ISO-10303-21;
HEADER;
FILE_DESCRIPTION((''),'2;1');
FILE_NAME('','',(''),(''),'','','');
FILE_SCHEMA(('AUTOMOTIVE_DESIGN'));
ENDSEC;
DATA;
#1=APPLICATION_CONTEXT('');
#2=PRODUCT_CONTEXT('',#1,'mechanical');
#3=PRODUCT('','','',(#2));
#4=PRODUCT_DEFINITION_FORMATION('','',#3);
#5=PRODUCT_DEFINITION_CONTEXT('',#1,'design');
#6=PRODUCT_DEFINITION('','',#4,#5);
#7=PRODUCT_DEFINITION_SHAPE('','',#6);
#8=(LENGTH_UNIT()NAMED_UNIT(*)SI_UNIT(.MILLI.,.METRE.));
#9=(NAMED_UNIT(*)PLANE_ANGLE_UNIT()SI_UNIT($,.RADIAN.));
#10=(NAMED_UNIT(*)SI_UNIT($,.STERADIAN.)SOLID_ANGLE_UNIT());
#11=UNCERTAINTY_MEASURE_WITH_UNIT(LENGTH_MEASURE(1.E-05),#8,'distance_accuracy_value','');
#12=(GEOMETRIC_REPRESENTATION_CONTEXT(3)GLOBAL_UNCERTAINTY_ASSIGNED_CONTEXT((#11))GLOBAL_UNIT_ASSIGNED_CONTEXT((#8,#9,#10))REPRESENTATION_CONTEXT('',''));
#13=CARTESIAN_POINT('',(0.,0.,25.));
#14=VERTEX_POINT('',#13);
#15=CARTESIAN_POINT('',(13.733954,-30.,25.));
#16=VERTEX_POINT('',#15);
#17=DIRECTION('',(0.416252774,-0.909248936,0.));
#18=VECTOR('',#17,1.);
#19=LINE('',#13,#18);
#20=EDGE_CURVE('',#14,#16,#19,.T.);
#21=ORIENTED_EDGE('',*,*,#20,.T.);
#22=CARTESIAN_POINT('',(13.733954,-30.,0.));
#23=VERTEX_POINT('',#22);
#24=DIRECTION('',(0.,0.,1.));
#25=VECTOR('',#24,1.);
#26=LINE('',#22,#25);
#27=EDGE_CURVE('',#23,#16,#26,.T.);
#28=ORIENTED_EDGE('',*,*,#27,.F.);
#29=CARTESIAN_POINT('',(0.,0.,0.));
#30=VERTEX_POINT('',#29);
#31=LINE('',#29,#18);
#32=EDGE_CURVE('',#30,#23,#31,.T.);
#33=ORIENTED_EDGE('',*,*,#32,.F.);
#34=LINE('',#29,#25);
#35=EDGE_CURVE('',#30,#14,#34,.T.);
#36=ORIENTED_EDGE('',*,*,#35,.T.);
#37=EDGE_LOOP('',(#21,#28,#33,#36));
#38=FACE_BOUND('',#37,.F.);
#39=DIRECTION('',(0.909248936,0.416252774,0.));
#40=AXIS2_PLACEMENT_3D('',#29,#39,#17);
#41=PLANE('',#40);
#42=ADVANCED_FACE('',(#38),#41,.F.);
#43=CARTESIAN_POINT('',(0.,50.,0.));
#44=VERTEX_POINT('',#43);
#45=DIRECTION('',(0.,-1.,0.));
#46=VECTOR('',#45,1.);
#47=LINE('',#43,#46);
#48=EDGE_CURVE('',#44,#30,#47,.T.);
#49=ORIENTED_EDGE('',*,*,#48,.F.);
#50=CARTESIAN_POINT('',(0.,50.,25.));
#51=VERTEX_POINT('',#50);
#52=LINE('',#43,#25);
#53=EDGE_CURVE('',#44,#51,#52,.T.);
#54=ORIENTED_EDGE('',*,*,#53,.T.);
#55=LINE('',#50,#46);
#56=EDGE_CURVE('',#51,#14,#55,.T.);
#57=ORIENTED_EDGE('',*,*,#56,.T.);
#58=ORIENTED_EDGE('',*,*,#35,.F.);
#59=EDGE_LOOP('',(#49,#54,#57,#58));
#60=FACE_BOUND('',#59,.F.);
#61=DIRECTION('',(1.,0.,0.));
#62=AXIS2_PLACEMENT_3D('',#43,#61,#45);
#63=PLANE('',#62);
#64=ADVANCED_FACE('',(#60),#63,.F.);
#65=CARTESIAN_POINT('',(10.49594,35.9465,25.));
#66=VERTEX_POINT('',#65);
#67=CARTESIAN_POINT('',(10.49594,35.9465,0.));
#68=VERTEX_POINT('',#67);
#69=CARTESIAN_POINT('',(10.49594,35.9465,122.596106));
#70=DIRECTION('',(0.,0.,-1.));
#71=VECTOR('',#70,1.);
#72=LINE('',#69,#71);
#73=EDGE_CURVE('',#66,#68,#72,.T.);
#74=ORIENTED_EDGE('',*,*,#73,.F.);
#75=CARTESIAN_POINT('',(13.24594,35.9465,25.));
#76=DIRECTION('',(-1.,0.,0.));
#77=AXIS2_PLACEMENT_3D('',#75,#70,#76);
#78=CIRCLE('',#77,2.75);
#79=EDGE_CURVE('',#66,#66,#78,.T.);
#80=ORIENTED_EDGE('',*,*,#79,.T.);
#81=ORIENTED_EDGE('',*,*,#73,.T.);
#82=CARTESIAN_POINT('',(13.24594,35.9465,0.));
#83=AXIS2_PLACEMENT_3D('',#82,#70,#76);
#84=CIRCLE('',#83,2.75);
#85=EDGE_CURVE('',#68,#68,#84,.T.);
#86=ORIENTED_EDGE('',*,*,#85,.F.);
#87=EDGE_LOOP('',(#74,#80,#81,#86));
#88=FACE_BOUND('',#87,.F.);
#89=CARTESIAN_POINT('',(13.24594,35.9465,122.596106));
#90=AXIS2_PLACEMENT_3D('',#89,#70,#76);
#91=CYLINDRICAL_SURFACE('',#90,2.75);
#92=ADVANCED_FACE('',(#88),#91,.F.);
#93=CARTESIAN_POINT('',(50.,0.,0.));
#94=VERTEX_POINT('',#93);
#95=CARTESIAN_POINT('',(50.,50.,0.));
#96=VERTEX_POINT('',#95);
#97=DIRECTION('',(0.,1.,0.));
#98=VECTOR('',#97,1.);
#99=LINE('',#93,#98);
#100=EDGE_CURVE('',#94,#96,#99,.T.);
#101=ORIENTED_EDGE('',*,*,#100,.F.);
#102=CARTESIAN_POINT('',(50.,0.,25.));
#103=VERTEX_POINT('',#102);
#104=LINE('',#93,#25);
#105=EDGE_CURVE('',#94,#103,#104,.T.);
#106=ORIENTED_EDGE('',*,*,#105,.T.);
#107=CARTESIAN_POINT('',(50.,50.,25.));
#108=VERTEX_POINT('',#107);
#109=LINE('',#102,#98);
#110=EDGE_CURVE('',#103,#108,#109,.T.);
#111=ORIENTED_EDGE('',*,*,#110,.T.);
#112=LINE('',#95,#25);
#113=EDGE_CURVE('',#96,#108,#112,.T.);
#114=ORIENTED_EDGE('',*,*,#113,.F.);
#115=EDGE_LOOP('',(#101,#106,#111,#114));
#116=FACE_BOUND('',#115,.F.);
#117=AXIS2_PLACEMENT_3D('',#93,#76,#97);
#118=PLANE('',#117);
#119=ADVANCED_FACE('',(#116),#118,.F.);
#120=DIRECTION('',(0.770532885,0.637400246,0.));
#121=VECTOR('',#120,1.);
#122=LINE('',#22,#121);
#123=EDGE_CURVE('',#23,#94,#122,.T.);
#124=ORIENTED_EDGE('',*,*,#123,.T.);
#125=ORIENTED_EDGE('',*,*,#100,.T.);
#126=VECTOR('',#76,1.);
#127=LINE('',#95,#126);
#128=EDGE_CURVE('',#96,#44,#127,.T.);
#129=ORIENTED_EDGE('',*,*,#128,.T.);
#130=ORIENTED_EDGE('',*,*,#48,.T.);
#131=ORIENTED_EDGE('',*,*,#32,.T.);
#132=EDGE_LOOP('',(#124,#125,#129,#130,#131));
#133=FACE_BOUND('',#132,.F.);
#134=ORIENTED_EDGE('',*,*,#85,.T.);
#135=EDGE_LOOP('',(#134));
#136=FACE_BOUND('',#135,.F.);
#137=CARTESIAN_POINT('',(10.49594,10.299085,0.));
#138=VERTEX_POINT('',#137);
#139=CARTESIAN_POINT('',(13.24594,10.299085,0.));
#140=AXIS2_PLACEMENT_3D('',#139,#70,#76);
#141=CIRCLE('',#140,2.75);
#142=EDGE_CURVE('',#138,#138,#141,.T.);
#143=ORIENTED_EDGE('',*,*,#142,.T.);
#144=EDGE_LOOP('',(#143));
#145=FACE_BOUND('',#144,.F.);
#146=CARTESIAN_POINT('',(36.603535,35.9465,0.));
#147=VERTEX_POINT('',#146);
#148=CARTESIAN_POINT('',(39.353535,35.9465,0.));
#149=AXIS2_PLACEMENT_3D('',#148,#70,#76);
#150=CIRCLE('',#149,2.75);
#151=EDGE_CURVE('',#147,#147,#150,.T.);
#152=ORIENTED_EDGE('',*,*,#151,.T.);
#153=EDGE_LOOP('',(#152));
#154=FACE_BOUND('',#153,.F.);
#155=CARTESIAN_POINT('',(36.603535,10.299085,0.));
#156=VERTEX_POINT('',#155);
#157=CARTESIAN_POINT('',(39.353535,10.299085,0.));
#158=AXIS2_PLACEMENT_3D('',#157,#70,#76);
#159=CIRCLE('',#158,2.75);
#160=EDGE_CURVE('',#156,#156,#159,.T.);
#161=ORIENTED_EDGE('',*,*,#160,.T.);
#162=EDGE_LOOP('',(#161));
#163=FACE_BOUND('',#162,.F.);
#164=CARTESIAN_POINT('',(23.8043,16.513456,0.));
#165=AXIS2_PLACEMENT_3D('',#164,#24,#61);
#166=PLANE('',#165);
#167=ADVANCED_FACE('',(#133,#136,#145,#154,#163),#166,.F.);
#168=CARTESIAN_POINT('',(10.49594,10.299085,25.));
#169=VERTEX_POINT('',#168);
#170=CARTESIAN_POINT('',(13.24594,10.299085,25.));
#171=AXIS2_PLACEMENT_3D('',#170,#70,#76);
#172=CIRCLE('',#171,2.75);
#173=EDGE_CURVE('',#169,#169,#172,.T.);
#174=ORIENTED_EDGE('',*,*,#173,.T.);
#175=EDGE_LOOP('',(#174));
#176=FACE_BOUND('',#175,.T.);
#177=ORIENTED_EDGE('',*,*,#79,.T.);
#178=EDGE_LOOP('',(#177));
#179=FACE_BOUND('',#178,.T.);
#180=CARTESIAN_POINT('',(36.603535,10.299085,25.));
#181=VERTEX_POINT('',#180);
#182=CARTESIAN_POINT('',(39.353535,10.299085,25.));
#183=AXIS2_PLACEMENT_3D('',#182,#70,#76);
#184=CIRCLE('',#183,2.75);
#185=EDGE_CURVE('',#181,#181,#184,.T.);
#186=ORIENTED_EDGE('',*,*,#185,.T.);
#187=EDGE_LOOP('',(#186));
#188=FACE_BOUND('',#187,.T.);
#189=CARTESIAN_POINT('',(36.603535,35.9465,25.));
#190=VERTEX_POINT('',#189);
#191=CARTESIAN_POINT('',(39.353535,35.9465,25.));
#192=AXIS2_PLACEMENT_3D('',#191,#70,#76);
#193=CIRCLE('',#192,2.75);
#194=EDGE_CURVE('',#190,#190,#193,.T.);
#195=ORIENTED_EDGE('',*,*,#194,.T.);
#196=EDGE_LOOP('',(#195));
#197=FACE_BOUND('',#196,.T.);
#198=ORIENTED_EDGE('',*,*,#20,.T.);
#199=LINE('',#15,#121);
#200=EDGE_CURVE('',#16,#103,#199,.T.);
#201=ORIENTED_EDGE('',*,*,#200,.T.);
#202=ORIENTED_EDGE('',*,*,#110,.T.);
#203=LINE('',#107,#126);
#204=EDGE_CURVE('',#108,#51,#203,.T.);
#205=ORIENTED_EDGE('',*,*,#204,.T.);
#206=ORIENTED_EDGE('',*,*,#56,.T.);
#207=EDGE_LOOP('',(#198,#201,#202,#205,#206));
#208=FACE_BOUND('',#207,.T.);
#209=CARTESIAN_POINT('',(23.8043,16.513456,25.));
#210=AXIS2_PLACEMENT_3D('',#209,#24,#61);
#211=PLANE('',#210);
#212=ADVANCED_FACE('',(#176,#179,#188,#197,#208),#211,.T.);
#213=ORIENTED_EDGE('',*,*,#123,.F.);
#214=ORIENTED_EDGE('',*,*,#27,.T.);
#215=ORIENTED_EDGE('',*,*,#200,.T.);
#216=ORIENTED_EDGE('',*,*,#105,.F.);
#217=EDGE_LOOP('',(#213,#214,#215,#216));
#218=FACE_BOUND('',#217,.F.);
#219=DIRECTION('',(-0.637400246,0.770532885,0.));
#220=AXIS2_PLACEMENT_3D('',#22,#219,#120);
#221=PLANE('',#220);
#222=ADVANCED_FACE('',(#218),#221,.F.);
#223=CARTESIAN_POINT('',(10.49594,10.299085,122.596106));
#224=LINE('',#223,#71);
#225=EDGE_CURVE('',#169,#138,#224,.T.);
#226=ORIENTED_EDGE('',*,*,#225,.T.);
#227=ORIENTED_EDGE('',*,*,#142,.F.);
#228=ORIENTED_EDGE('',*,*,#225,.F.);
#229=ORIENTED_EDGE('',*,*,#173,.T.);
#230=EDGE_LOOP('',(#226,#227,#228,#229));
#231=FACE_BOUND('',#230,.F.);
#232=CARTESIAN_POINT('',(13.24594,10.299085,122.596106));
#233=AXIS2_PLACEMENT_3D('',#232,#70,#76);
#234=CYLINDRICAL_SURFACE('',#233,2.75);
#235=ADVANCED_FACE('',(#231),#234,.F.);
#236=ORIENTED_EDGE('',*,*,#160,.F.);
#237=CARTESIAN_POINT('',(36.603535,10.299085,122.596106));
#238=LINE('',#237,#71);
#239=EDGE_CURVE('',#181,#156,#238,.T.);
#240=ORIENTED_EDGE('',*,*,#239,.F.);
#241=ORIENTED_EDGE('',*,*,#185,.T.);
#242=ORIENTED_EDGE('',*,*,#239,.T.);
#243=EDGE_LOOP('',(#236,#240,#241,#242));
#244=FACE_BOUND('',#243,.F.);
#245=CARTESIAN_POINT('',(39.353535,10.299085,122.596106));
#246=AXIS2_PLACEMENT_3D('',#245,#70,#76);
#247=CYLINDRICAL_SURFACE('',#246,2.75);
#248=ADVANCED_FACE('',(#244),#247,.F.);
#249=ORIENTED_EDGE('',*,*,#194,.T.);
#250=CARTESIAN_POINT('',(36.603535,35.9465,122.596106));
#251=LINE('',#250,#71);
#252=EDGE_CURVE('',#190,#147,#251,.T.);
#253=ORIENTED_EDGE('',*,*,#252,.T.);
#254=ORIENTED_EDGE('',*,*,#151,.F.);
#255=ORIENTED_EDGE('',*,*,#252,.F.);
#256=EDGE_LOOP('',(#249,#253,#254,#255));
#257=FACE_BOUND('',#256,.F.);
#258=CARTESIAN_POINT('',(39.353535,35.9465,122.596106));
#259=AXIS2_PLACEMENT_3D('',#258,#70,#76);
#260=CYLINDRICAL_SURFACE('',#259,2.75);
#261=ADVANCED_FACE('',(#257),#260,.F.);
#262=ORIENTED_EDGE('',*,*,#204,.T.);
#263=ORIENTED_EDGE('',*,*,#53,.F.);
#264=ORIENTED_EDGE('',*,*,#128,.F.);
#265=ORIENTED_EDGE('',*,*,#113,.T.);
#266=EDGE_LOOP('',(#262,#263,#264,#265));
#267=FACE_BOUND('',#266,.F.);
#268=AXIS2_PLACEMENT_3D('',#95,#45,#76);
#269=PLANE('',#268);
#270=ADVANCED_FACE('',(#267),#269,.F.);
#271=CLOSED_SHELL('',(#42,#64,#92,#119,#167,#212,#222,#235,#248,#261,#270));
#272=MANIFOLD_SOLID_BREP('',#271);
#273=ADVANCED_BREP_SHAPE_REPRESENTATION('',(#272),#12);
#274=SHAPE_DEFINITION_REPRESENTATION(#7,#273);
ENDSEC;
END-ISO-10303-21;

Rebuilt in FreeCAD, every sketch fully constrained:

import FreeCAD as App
import Part
import Sketcher

V = App.Vector
Q = App.Units.Quantity

doc = App.newDocument("Part")
params = doc.addObject("Spreadsheet::Sheet", "Params")
for row, (alias, value) in enumerate([
    ("sketch1_width", "50 mm"),
    ("pad1_length", "25 mm"),
    ("sketch2_diameter", "5.5 mm"),
    ("hole_diameter", "5.5 mm"),
], start=1):
    params.set(f"A{row}", alias)
    params.set(f"B{row}", "=" + value)
    params.setAlias(f"B{row}", alias)

body = doc.addObject("PartDesign::Body", "Body")

sketch1 = body.newObject("Sketcher::SketchObject", "Sketch")
sketch1.AttachmentSupport = (doc.getObject("XY_Plane"), [""])
sketch1.MapMode = "FlatFace"
sketch1.addGeometry(Part.LineSegment(V(0, 50, 0), V(0, 0, 0)), False)
sketch1.addGeometry(Part.LineSegment(V(0, 0, 0), V(14, -30, 0)), False)
sketch1.addGeometry(Part.LineSegment(V(14, -30, 0), V(50, 0, 0)), False)
sketch1.addGeometry(Part.LineSegment(V(50, 0, 0), V(50, 50, 0)), False)
sketch1.addGeometry(Part.LineSegment(V(50, 50, 0), V(0, 50, 0)), False)
sketch1.addConstraint(Sketcher.Constraint("Coincident", 0, 2, 1, 1))
sketch1.addConstraint(Sketcher.Constraint("Coincident", 1, 2, 2, 1))
sketch1.addConstraint(Sketcher.Constraint("Coincident", 2, 2, 3, 1))
sketch1.addConstraint(Sketcher.Constraint("Coincident", 3, 2, 4, 1))
sketch1.addConstraint(Sketcher.Constraint("Coincident", 4, 2, 0, 1))
sketch1.addConstraint(Sketcher.Constraint("Vertical", 0))
sketch1.addConstraint(Sketcher.Constraint("Vertical", 3))
sketch1.addConstraint(Sketcher.Constraint("Horizontal", 4))
sketch1.addConstraint(Sketcher.Constraint("Coincident", 0, 2, -1, 1))
sketch1.addConstraint(Sketcher.Constraint("PointOnObject", 2, 2, -1))
sketch1.addConstraint(Sketcher.Constraint("Equal", 4, 0))
sketch1.addConstraint(Sketcher.Constraint("DistanceX", 4, 2, 4, 1, Q("50 mm")))
sketch1.addConstraint(Sketcher.Constraint("DistanceY", 1, 2, -1, 1, Q("30 mm")))
sketch1.addConstraint(Sketcher.Constraint("Distance", 2, Q("47.066188 mm")))
sketch1.setExpression("Constraints[11]", "Params.sketch1_width")
pad1 = body.newObject("PartDesign::Pad", "Pad")
pad1.Profile = sketch1
pad1.setExpression("Length", "Params.pad1_length")

sketch2 = body.newObject("Sketcher::SketchObject", "Sketch001")
sketch2.AttachmentSupport = (doc.getObject("XY_Plane"), [""])
sketch2.MapMode = "FlatFace"
sketch2.AttachmentOffset = App.Placement(V(0, 0, 25), App.Rotation())
sketch2.addGeometry(Part.Circle(V(13.2, 35.9, 0), V(0, 0, 1), 2.8), False)
sketch2.addGeometry(Part.Circle(V(39.4, 35.9, 0), V(0, 0, 1), 2.8), False)
sketch2.addGeometry(Part.Circle(V(39.4, 10.3, 0), V(0, 0, 1), 2.8), False)
sketch2.addGeometry(Part.Circle(V(13.2, 10.3, 0), V(0, 0, 1), 2.8), False)
sketch2.addConstraint(Sketcher.Constraint("Equal", 0, 1))
sketch2.addConstraint(Sketcher.Constraint("Equal", 1, 2))
sketch2.addConstraint(Sketcher.Constraint("Equal", 2, 3))
sketch2.addConstraint(Sketcher.Constraint("Horizontal", 0, 3, 1, 3))
sketch2.addConstraint(Sketcher.Constraint("Horizontal", 2, 3, 3, 3))
sketch2.addConstraint(Sketcher.Constraint("Vertical", 1, 3, 2, 3))
sketch2.addConstraint(Sketcher.Constraint("Vertical", 0, 3, 3, 3))
sketch2.addConstraint(Sketcher.Constraint("Diameter", 0, Q("5.5 mm")))
sketch2.addConstraint(Sketcher.Constraint("DistanceY", -1, 1, 0, 3, Q("35.9465 mm")))
sketch2.addConstraint(Sketcher.Constraint("DistanceX", -1, 1, 0, 3, Q("13.24594 mm")))
sketch2.addConstraint(Sketcher.Constraint("DistanceX", -1, 1, 1, 3, Q("39.353535 mm")))
sketch2.addConstraint(Sketcher.Constraint("DistanceY", -1, 1, 2, 3, Q("10.299085 mm")))
sketch2.setExpression("Constraints[7]", "Params.sketch2_diameter")
doc.recompute()
hole = body.newObject("PartDesign::Hole", "Hole")
hole.Profile = sketch2
hole.ThreadType = "None"
hole.setExpression("Diameter", "Params.hole_diameter")
hole.DepthType = "ThroughAll"

doc.recompute()
